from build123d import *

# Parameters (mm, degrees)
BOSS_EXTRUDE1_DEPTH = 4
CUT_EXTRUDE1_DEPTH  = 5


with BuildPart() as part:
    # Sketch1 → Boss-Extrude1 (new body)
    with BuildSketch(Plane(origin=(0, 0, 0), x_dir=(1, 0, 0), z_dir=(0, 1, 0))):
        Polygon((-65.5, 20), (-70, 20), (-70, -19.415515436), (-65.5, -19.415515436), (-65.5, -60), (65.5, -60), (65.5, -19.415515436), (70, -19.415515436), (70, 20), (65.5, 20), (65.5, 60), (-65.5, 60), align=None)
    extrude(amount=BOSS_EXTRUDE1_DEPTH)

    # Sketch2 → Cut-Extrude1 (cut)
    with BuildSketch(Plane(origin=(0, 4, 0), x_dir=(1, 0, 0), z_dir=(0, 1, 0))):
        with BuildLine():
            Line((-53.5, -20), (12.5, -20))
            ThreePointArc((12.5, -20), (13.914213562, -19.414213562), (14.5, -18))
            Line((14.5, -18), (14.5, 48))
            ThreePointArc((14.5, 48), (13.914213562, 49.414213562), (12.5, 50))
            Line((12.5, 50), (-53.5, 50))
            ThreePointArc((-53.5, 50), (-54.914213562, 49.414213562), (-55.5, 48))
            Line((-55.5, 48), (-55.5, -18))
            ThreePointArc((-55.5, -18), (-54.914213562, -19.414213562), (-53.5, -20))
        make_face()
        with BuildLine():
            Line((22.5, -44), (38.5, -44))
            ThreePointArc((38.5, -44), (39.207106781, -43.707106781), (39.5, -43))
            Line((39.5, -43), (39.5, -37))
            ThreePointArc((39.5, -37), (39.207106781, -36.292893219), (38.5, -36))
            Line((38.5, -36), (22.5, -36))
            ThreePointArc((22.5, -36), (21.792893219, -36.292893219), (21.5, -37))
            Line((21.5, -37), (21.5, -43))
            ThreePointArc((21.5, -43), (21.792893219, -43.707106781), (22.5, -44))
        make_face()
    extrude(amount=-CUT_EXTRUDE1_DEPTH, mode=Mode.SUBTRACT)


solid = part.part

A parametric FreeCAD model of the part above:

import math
import FreeCAD as App
import Part
import Sketcher
from FreeCAD import Vector
Q = App.Units.Quantity


def add_polygon(sketch, points):
    """Adds a closed chain of lines whose ends are joined by coincident constraints."""
    first, n = sketch.GeometryCount, len(points)
    for a, b in zip(points, points[1:] + points[:1]):
        sketch.addGeometry(Part.LineSegment(App.Vector(*a, 0), App.Vector(*b, 0)), False)
    for i in range(n):
        sketch.addConstraint(Sketcher.Constraint("Coincident", first + i, 2, first + (i + 1) % n, 1))

doc = App.newDocument("Part")
body = doc.addObject("PartDesign::Body", "Body")

sketch1 = body.newObject("Sketcher::SketchObject", "Sketch")
sketch1.AttachmentSupport = (doc.getObject("XZ_Plane"), [""])
sketch1.MapMode = "FlatFace"
add_polygon(sketch1, [(-65.5, -20), (-70, -20), (-70, 19.4), (-65.5, 19.4), (-65.5, 60), (65.5, 60), (65.5, 19.4), (70, 19.4), (70, -20), (65.5, -20), (65.5, -60), (-65.5, -60)])
sketch1.addConstraint(Sketcher.Constraint("Horizontal", 0))
sketch1.addConstraint(Sketcher.Constraint("Vertical", 1))
sketch1.addConstraint(Sketcher.Constraint("Horizontal", 2))
sketch1.addConstraint(Sketcher.Constraint("Vertical", 3))
sketch1.addConstraint(Sketcher.Constraint("Horizontal", 4))
sketch1.addConstraint(Sketcher.Constraint("Vertical", 5))
sketch1.addConstraint(Sketcher.Constraint("Horizontal", 6))
sketch1.addConstraint(Sketcher.Constraint("Vertical", 7))
sketch1.addConstraint(Sketcher.Constraint("Horizontal", 8))
sketch1.addConstraint(Sketcher.Constraint("Vertical", 9))
sketch1.addConstraint(Sketcher.Constraint("Horizontal", 10))
sketch1.addConstraint(Sketcher.Constraint("Vertical", 11))
sketch1.addConstraint(Sketcher.Constraint("Symmetric", 3, 2, 9, 2, -1, 1))
sketch1.addConstraint(Sketcher.Constraint("Symmetric", 2, 2, 5, 2, -2))
sketch1.addConstraint(Sketcher.Constraint("Symmetric", 0, 2, 7, 2, -2))
sketch1.addConstraint(Sketcher.Constraint("Vertical", 3, 2, 10, 2))
sketch1.addConstraint(Sketcher.Constraint("DistanceX", 4, 1, 4, 2, Q("131 mm")))
sketch1.addConstraint(Sketcher.Constraint("DistanceY", 9, 2, 9, 1, Q("40 mm")))
sketch1.addConstraint(Sketcher.Constraint("DistanceX", 0, 2, 0, 1, Q("4.5 mm")))
sketch1.addConstraint(Sketcher.Constraint("DistanceY", 0, 2, -1, 1, Q("20 mm")))
sketch1.addConstraint(Sketcher.Constraint("DistanceY", 1, 1, 1, 2, Q("39.415515 mm")))
pad1 = body.newObject("PartDesign::Pad", "Pad")
pad1.Profile = sketch1
pad1.Length = 4
pad1.Reversed = True

sketch2 = body.newObject("Sketcher::SketchObject", "Sketch001")
sketch2.AttachmentSupport = (doc.getObject("XZ_Plane"), [""])
sketch2.MapMode = "FlatFace"
sketch2.AttachmentOffset = App.Placement(Vector(0, 0, -4), App.Rotation())
sketch2.addGeometry(Part.LineSegment(Vector(-53.5, 20, 0), Vector(12.5, 20, 0)), False)
sketch2.addGeometry(Part.ArcOfCircle(Part.Circle(Vector(12.5, 18, 0), Vector(0, 0, 1), 2), math.radians(0), math.radians(90)), False)
sketch2.addGeometry(Part.LineSegment(Vector(14.5, 18, 0), Vector(14.5, -48, 0)), False)
sketch2.addGeometry(Part.ArcOfCircle(Part.Circle(Vector(12.5, -48, 0), Vector(0, 0, 1), 2), math.radians(-90), math.radians(0)), False)
sketch2.addGeometry(Part.LineSegment(Vector(12.5, -50, 0), Vector(-53.5, -50, 0)), False)
sketch2.addGeometry(Part.ArcOfCircle(Part.Circle(Vector(-53.5, -48, 0), Vector(0, 0, 1), 2), math.radians(-180), math.radians(-90)), False)
sketch2.addGeometry(Part.LineSegment(Vector(-55.5, -48, 0), Vector(-55.5, 18, 0)), False)
sketch2.addGeometry(Part.ArcOfCircle(Part.Circle(Vector(-53.5, 18, 0), Vector(0, 0, 1), 2), math.radians(90), math.radians(180)), False)
sketch2.addGeometry(Part.LineSegment(Vector(22.5, 44, 0), Vector(38.5, 44, 0)), False)
sketch2.addGeometry(Part.ArcOfCircle(Part.Circle(Vector(38.5, 43, 0), Vector(0, 0, 1), 1), math.radians(0), math.radians(90)), False)
sketch2.addGeometry(Part.LineSegment(Vector(39.5, 43, 0), Vector(39.5, 37, 0)), False)
sketch2.addGeometry(Part.ArcOfCircle(Part.Circle(Vector(38.5, 37, 0), Vector(0, 0, 1), 1), math.radians(-90), math.radians(0)), False)
sketch2.addGeometry(Part.LineSegment(Vector(38.5, 36, 0), Vector(22.5, 36, 0)), False)
sketch2.addGeometry(Part.ArcOfCircle(Part.Circle(Vector(22.5, 37, 0), Vector(0, 0, 1), 1), math.radians(-180), math.radians(-90)), False)
sketch2.addGeometry(Part.LineSegment(Vector(21.5, 37, 0), Vector(21.5, 43, 0)), False)
sketch2.addGeometry(Part.ArcOfCircle(Part.Circle(Vector(22.5, 43, 0), Vector(0, 0, 1), 1), math.radians(90), math.radians(180)), False)
sketch2.addConstraint(Sketcher.Constraint("Tangent", 0, 2, 1, 2))
sketch2.addConstraint(Sketcher.Constraint("Tangent", 1, 1, 2, 1))
sketch2.addConstraint(Sketcher.Constraint("Tangent", 2, 2, 3, 2))
sketch2.addConstraint(Sketcher.Constraint("Tangent", 3, 1, 4, 1))
sketch2.addConstraint(Sketcher.Constraint("Tangent", 4, 2, 5, 2))
sketch2.addConstraint(Sketcher.Constraint("Tangent", 5, 1, 6, 1))
sketch2.addConstraint(Sketcher.Constraint("Tangent", 6, 2, 7, 2))
sketch2.addConstraint(Sketcher.Constraint("Tangent", 7, 1, 0, 1))
sketch2.addConstraint(Sketcher.Constraint("Tangent", 8, 2, 9, 2))
sketch2.addConstraint(Sketcher.Constraint("Tangent", 9, 1, 10, 1))
sketch2.addConstraint(Sketcher.Constraint("Tangent", 10, 2, 11, 2))
sketch2.addConstraint(Sketcher.Constraint("Tangent", 11, 1, 12, 1))
sketch2.addConstraint(Sketcher.Constraint("Tangent", 12, 2, 13, 2))
sketch2.addConstraint(Sketcher.Constraint("Tangent", 13, 1, 14, 1))
sketch2.addConstraint(Sketcher.Constraint("Tangent", 14, 2, 15, 2))
sketch2.addConstraint(Sketcher.Constraint("Tangent", 15, 1, 8, 1))
sketch2.addConstraint(Sketcher.Constraint("Horizontal", 0))
sketch2.addConstraint(Sketcher.Constraint("Vertical", 2))
sketch2.addConstraint(Sketcher.Constraint("Horizontal", 4))
sketch2.addConstraint(Sketcher.Constraint("Vertical", 6))
sketch2.addConstraint(Sketcher.Constraint("Horizontal", 8))
sketch2.addConstraint(Sketcher.Constraint("Vertical", 10))
sketch2.addConstraint(Sketcher.Constraint("Horizontal", 12))
sketch2.addConstraint(Sketcher.Constraint("Vertical", 14))
sketch2.addConstraint(Sketcher.Constraint("Equal", 1, 3))
sketch2.addConstraint(Sketcher.Constraint("Equal", 3, 5))
sketch2.addConstraint(Sketcher.Constraint("Equal", 5, 7))
sketch2.addConstraint(Sketcher.Constraint("Equal", 9, 11))
sketch2.addConstraint(Sketcher.Constraint("Equal", 11, 13))
sketch2.addConstraint(Sketcher.Constraint("Equal", 13, 15))
sketch2.addConstraint(Sketcher.Constraint("Equal", 4, 2))
sketch2.addConstraint(Sketcher.Constraint("Radius", 1, Q("2 mm")))
sketch2.addConstraint(Sketcher.Constraint("Radius", 9, Q("1 mm")))
sketch2.addConstraint(Sketcher.Constraint("DistanceX", 0, 1, 0, 2, Q("66 mm")))
sketch2.addConstraint(Sketcher.Constraint("DistanceX", 8, 1, 8, 2, Q("16 mm")))
sketch2.addConstraint(Sketcher.Constraint("DistanceY", 10, 2, 10, 1, Q("6 mm")))
sketch2.addConstraint(Sketcher.Constraint("DistanceY", -1, 1, 1, 3, Q("18 mm")))
sketch2.addConstraint(Sketcher.Constraint("DistanceY", -1, 1, 9, 3, Q("43 mm")))
sketch2.addConstraint(Sketcher.Constraint("DistanceX", 1, 3, 9, 3, Q("26 mm")))
sketch2.addConstraint(Sketcher.Constraint("DistanceX", -1, 1, 1, 3, Q("12.5 mm")))
pocket1 = body.newObject("PartDesign::Pocket", "Pocket")
pocket1.Profile = sketch2
pocket1.Length = 5
pocket1.Reversed = True

doc.recompute()
